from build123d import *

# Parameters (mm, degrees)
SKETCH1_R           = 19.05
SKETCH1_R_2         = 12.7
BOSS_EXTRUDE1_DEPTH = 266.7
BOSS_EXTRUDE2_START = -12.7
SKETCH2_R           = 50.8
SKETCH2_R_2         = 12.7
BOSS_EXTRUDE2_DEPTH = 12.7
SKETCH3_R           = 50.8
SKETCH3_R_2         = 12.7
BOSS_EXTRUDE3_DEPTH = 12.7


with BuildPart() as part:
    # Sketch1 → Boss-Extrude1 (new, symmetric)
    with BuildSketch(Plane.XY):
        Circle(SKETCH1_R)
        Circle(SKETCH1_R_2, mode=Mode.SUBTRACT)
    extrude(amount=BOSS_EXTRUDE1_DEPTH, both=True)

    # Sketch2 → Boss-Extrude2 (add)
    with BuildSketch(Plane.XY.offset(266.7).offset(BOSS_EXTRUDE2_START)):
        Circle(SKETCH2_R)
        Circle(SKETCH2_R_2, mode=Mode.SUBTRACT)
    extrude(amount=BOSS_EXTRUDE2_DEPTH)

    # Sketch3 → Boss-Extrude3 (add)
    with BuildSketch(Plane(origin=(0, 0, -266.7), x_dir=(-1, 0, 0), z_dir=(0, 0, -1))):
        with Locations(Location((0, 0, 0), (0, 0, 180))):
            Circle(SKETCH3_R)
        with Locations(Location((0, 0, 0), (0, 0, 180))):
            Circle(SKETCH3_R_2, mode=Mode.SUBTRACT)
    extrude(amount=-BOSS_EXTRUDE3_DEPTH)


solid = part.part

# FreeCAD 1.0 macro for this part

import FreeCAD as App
import Part
import Sketcher
from FreeCAD import Vector
Q = App.Units.Quantity

doc = App.newDocument("Part")
params = doc.addObject("Spreadsheet::Sheet", "Params")
for row, (alias, value) in enumerate([
    ("sketch1_diameter", "1 in"),
    ("sketch1_diameter2", "1.5 in"),
    ("pad1_length", "21 in"),
    ("sketch2_diameter", "4 in"),
    ("sketch2_diameter2", "1 in"),
    ("pad2_length", "0.5 in"),
    ("sketch3_diameter", "4 in"),
    ("sketch3_diameter2", "1 in"),
    ("pad3_length", "0.5 in"),
], start=1):
    params.set(f"A{row}", alias)
    params.set(f"B{row}", "=" + value)
    params.setAlias(f"B{row}", alias)

body = doc.addObject("PartDesign::Body", "Body")

sketch1 = body.newObject("Sketcher::SketchObject", "Sketch")
sketch1.AttachmentSupport = (doc.getObject("XY_Plane"), [""])
sketch1.MapMode = "FlatFace"
sketch1.addGeometry([
    Part.Circle(Vector(0, 0, 0), Vector(0, 0, 1), 19),
    Part.Circle(Vector(0, 0, 0), Vector(0, 0, 1), 13),
], False)
sketch1.addConstraint([
    Sketcher.Constraint("Coincident", 0, 3, -1, 1),
    Sketcher.Constraint("Coincident", 1, 3, -1, 1),
    Sketcher.Constraint("Diameter", 1, Q("1 in")),
    Sketcher.Constraint("Diameter", 0, Q("1.5 in")),
])
sketch1.setExpression("Constraints[2]", "Params.sketch1_diameter")
sketch1.setExpression("Constraints[3]", "Params.sketch1_diameter2")
pad1 = body.newObject("PartDesign::Pad", "Pad")
pad1.Profile = sketch1
pad1.setExpression("Length", "Params.pad1_length")
pad1.Midplane = True

sketch2 = body.newObject("Sketcher::SketchObject", "Sketch001")
sketch2.AttachmentSupport = (doc.getObject("XY_Plane"), [""])
sketch2.MapMode = "FlatFace"
sketch2.AttachmentOffset = App.Placement(Vector(0, 0, 10 * 25.4), App.Rotation())
sketch2.addGeometry([
    Part.Circle(Vector(0, 0, 0), Vector(0, 0, 1), 51),
    Part.Circle(Vector(0, 0, 0), Vector(0, 0, 1), 13),
], False)
sketch2.addConstraint([
    Sketcher.Constraint("Coincident", 0, 3, -1, 1),
    Sketcher.Constraint("Coincident", 1, 3, -1, 1),
    Sketcher.Constraint("Diameter", 0, Q("4 in")),
    Sketcher.Constraint("Diameter", 1, Q("1 in")),
])
sketch2.setExpression("Constraints[2]", "Params.sketch2_diameter")
sketch2.setExpression("Constraints[3]", "Params.sketch2_diameter2")
pad2 = body.newObject("PartDesign::Pad", "Pad001")
pad2.Profile = sketch2
pad2.setExpression("Length", "Params.pad2_length")

sketch3 = body.newObject("Sketcher::SketchObject", "Sketch002")
sketch3.AttachmentSupport = (doc.getObject("XY_Plane"), [""])
sketch3.MapMode = "FlatFace"
sketch3.AttachmentOffset = App.Placement(Vector(0, 0, -10.5 * 25.4), App.Rotation())
sketch3.addGeometry([
    Part.Circle(Vector(0, 0, 0), Vector(0, 0, 1), 51),
    Part.Circle(Vector(0, 0, 0), Vector(0, 0, 1), 13),
], False)
sketch3.addConstraint([
    Sketcher.Constraint("Coincident", 0, 3, -1, 1),
    Sketcher.Constraint("Coincident", 1, 3, -1, 1),
    Sketcher.Constraint("Diameter", 0, Q("4 in")),
    Sketcher.Constraint("Diameter", 1, Q("1 in")),
])
sketch3.setExpression("Constraints[2]", "Params.sketch3_diameter")
sketch3.setExpression("Constraints[3]", "Params.sketch3_diameter2")
pad3 = body.newObject("PartDesign::Pad", "Pad002")
pad3.Profile = sketch3
pad3.setExpression("Length", "Params.pad3_length")

doc.recompute()
